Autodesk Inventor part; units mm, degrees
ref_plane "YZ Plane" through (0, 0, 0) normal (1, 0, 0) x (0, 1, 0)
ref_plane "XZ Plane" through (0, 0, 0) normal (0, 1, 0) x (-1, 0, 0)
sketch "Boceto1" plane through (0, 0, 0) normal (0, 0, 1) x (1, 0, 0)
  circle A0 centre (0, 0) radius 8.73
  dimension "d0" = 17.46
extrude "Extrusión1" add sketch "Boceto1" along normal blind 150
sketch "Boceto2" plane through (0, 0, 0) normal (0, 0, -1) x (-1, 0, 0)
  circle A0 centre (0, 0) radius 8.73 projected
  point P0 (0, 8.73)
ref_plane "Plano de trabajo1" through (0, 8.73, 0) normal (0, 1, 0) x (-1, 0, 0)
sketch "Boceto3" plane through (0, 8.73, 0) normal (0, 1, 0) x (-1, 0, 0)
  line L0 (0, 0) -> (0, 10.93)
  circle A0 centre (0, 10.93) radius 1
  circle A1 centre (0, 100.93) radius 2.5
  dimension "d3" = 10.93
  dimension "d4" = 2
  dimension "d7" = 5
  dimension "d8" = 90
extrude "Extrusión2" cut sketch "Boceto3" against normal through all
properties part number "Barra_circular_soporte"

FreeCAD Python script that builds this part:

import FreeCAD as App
import Part
import Sketcher

V = App.Vector
Q = App.Units.Quantity

doc = App.newDocument("Part")
params = doc.addObject("Spreadsheet::Sheet", "Params")
for row, (alias, value) in enumerate([
    ("sketch1_diameter", "17.46 mm"),
    ("pad1_length", "150 mm"),
    ("sketch2_diameter", "2 mm"),
    ("sketch2_diameter2", "5 mm"),
], start=1):
    params.set(f"A{row}", alias)
    params.set(f"B{row}", "=" + value)
    params.setAlias(f"B{row}", alias)

body = doc.addObject("PartDesign::Body", "Body")

# Sketch on XY plane
sketch1 = body.newObject("Sketcher::SketchObject", "Sketch")
sketch1.AttachmentSupport = (doc.getObject("XY_Plane"), [""])
sketch1.MapMode = "FlatFace"
sketch1.addGeometry(Part.Circle(V(0, 0, 0), V(0, 0, 1), 9), False)
sketch1.addConstraint(Sketcher.Constraint("Coincident", 0, 3, -1, 1))
sketch1.addConstraint(Sketcher.Constraint("Diameter", 0, Q("17.46 mm")))
sketch1.setExpression("Constraints[1]", "Params.sketch1_diameter")
pad1 = body.newObject("PartDesign::Pad", "Pad")
pad1.Profile = sketch1
pad1.setExpression("Length", "Params.pad1_length")

# Sketch on XZ plane
sketch2 = body.newObject("Sketcher::SketchObject", "Sketch001")
sketch2.AttachmentSupport = (doc.getObject("XZ_Plane"), [""])
sketch2.MapMode = "FlatFace"
sketch2.AttachmentOffset = App.Placement(V(0, 0, -8.73), App.Rotation())
sketch2.addGeometry(Part.Circle(V(0, 10.9, 0), V(0, 0, 1), 1), False)
sketch2.addGeometry(Part.Circle(V(0, 100.9, 0), V(0, 0, 1), 2.5), False)
sketch2.addConstraint(Sketcher.Constraint("PointOnObject", 0, 3, -2))
sketch2.addConstraint(Sketcher.Constraint("PointOnObject", 1, 3, -2))
sketch2.addConstraint(Sketcher.Constraint("Diameter", 0, Q("2 mm")))
sketch2.addConstraint(Sketcher.Constraint("Diameter", 1, Q("5 mm")))
sketch2.addConstraint(Sketcher.Constraint("DistanceY", 0, 3, 1, 3, Q("90 mm")))
sketch2.addConstraint(Sketcher.Constraint("DistanceY", -1, 1, 0, 3, Q("10.93 mm")))
sketch2.setExpression("Constraints[2]", "Params.sketch2_diameter")
sketch2.setExpression("Constraints[3]", "Params.sketch2_diameter2")
pocket1 = body.newObject("PartDesign::Pocket", "Pocket")
pocket1.Profile = sketch2
pocket1.Type = "ThroughAll"
pocket1.Reversed = True

doc.recompute()
